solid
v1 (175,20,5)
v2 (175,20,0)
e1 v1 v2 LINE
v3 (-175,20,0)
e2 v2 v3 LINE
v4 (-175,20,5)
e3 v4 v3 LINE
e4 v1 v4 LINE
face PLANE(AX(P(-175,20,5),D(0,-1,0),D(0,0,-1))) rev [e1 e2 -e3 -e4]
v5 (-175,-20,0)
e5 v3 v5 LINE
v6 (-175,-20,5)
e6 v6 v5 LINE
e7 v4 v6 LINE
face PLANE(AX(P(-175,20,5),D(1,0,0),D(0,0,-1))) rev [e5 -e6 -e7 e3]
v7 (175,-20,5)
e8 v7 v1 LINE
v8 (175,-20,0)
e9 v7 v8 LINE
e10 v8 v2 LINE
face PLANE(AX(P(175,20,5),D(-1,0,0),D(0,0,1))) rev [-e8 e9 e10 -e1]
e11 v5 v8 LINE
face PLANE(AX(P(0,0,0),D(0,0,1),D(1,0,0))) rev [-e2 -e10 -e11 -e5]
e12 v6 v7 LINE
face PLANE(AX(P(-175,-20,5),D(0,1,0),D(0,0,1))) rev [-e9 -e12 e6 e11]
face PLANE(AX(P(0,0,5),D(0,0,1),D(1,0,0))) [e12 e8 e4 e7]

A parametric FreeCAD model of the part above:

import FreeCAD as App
import Part
import Sketcher
from FreeCAD import Vector
Q = App.Units.Quantity

doc = App.newDocument("Part")
params = doc.addObject("Spreadsheet::Sheet", "Params")
for row, (alias, value) in enumerate([
    ("sketch1_width", "350 mm"),
    ("sketch1_height", "40 mm"),
    ("pad1_length", "5 mm"),
], start=1):
    params.set(f"A{row}", alias)
    params.set(f"B{row}", "=" + value)
    params.setAlias(f"B{row}", alias)

body = doc.addObject("PartDesign::Body", "Body")

sketch1 = body.newObject("Sketcher::SketchObject", "Sketch")
sketch1.AttachmentSupport = (doc.getObject("XY_Plane"), [""])
sketch1.MapMode = "FlatFace"
sketch1.addGeometry([
    Part.LineSegment(Vector(-175, 20, 0), Vector(-175, -20, 0)),
    Part.LineSegment(Vector(-175, -20, 0), Vector(175, -20, 0)),
    Part.LineSegment(Vector(175, -20, 0), Vector(175, 20, 0)),
    Part.LineSegment(Vector(175, 20, 0), Vector(-175, 20, 0)),
], False)
sketch1.addConstraint([
    Sketcher.Constraint("Coincident", 0, 2, 1, 1),
    Sketcher.Constraint("Coincident", 1, 2, 2, 1),
    Sketcher.Constraint("Coincident", 2, 2, 3, 1),
    Sketcher.Constraint("Coincident", 3, 2, 0, 1),
    Sketcher.Constraint("Vertical", 0),
    Sketcher.Constraint("Horizontal", 1),
    Sketcher.Constraint("Vertical", 2),
    Sketcher.Constraint("Horizontal", 3),
    Sketcher.Constraint("Symmetric", 0, 2, 2, 2, -1, 1),
    Sketcher.Constraint("DistanceX", 1, 1, 1, 2, Q("350 mm")),
    Sketcher.Constraint("DistanceY", 0, 2, 0, 1, Q("40 mm")),
])
sketch1.setExpression("Constraints[9]", "Params.sketch1_width")
sketch1.setExpression("Constraints[10]", "Params.sketch1_height")
pad1 = body.newObject("PartDesign::Pad", "Pad")
pad1.Profile = sketch1
pad1.setExpression("Length", "Params.pad1_length")

doc.recompute()
